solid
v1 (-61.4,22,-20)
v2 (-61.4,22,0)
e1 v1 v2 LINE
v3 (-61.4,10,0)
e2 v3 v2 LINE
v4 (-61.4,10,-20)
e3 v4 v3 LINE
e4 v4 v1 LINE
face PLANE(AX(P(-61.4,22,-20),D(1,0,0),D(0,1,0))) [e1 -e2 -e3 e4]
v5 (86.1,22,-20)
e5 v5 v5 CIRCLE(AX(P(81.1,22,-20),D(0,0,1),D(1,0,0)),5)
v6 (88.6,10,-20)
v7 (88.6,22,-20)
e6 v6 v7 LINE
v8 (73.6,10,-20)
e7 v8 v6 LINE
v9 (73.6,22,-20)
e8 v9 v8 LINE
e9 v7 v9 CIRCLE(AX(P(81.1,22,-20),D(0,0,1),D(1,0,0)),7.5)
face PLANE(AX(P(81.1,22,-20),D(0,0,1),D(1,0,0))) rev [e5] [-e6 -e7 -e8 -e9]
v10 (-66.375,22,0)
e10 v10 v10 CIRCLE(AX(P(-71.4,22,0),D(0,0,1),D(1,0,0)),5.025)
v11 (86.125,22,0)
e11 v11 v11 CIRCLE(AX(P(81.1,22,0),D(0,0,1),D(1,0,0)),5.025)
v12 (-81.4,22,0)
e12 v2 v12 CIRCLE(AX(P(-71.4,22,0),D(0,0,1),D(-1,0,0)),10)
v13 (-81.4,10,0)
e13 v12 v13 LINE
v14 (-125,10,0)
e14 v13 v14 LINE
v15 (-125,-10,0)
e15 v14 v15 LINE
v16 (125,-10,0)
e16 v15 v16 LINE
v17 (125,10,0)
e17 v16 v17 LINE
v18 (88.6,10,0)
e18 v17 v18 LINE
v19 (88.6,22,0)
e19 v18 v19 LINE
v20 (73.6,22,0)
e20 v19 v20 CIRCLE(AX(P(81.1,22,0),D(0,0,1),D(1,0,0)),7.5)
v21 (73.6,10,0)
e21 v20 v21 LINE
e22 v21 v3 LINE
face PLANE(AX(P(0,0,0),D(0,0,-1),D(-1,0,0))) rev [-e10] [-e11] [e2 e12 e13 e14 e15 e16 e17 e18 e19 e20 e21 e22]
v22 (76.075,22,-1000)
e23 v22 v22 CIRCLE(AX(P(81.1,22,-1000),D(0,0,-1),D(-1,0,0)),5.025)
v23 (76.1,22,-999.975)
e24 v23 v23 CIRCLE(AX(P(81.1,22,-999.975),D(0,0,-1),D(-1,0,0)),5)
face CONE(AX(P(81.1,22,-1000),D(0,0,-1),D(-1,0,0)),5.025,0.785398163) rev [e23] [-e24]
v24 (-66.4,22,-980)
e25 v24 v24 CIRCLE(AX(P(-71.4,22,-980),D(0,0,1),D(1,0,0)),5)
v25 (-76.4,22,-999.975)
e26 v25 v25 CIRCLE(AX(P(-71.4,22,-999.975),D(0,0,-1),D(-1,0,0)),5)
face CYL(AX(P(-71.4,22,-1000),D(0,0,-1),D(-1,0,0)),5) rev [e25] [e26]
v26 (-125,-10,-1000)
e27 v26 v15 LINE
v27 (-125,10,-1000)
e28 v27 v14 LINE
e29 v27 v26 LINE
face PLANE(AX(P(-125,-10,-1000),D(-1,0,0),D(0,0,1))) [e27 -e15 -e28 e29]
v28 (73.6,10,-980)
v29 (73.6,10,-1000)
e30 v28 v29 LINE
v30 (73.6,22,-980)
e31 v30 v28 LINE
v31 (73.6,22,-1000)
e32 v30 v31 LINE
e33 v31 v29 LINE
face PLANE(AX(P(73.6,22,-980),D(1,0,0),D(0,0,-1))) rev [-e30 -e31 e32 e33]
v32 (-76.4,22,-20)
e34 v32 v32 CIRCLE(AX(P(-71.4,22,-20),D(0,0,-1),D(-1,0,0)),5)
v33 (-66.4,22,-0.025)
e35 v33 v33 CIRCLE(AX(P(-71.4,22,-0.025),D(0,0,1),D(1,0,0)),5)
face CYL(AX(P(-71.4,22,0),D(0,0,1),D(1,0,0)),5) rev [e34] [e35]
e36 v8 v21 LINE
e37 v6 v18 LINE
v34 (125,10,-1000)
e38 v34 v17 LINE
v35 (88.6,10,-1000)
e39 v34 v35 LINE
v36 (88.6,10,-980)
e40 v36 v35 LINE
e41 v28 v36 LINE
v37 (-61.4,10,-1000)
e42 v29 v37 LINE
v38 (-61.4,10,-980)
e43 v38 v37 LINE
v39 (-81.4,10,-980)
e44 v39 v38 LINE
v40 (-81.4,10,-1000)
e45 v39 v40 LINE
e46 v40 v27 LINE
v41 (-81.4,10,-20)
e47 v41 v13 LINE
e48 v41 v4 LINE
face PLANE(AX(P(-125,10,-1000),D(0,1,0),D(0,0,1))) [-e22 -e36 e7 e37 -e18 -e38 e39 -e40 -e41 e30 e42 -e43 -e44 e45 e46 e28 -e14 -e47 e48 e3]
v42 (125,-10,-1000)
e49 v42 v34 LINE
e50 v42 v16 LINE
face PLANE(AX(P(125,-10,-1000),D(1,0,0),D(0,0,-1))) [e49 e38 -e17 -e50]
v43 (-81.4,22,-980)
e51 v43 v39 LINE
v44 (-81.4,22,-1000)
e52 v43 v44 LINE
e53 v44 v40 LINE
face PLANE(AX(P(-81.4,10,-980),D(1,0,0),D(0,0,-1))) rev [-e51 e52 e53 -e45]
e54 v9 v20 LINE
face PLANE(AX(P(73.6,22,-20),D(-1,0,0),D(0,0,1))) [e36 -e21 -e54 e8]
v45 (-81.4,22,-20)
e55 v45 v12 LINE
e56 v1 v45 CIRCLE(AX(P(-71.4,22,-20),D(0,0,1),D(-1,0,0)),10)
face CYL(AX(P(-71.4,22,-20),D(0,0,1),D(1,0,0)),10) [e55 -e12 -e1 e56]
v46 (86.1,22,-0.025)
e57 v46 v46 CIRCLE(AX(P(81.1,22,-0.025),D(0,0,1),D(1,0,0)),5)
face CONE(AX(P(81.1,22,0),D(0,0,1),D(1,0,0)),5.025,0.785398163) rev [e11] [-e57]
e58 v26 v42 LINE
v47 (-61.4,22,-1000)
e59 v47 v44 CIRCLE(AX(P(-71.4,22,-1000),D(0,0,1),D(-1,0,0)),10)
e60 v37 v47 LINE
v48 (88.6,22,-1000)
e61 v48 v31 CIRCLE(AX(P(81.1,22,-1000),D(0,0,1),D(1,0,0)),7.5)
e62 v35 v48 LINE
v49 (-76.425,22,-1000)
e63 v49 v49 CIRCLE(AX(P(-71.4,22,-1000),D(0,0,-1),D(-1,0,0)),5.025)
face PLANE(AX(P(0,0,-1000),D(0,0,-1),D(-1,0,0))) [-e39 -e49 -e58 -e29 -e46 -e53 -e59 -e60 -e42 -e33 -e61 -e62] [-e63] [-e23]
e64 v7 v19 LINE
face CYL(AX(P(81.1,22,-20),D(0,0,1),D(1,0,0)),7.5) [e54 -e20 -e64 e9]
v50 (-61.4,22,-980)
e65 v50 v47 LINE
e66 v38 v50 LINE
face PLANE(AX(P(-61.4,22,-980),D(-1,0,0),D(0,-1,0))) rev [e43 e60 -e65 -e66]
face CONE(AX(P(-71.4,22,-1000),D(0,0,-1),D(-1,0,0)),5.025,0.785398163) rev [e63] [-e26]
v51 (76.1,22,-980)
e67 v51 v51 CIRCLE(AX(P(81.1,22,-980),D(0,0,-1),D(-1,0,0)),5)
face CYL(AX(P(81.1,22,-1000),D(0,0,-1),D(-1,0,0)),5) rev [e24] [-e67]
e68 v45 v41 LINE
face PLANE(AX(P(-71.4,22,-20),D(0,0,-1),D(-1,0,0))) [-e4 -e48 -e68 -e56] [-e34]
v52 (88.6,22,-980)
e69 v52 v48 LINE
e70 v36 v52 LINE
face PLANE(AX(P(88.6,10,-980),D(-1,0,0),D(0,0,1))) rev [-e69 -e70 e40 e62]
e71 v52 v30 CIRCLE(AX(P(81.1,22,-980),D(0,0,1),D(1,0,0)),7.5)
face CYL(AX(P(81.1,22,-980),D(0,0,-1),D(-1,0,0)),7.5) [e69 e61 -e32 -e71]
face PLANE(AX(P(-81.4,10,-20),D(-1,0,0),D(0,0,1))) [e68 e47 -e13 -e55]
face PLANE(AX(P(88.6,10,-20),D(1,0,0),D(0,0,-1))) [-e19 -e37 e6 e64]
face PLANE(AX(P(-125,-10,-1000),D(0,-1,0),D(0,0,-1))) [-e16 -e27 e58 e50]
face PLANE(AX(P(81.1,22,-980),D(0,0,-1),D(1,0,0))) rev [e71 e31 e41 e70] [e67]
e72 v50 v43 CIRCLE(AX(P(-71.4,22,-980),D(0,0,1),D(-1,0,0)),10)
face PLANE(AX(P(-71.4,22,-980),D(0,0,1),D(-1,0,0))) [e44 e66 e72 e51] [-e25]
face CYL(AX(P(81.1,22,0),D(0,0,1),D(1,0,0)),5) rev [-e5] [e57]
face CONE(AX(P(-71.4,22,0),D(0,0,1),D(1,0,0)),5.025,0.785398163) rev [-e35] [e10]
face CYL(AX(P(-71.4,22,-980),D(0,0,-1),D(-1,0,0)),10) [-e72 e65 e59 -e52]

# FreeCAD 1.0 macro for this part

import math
import FreeCAD as App
import Part
import Sketcher
from FreeCAD import Vector


def add_polygon(sketch, points):
    """Adds a closed chain of lines whose ends are joined by coincident constraints."""
    first, n = sketch.GeometryCount, len(points)
    for a, b in zip(points, points[1:] + points[:1]):
        sketch.addGeometry(Part.LineSegment(App.Vector(*a, 0), App.Vector(*b, 0)), False)
    for i in range(n):
        sketch.addConstraint(Sketcher.Constraint("Coincident", first + i, 2, first + (i + 1) % n, 1))

doc = App.newDocument("Part")
body = doc.addObject("PartDesign::Body", "Body")

# Sketch on XY plane
sketch1 = doc.addObject("Sketcher::SketchObject", "Sketch")
body.addObject(sketch1)
sketch1.AttachmentSupport = (doc.XY_Plane, [""])
sketch1.MapMode = "FlatFace"
add_polygon(sketch1, [(-125, 10), (-125, -10), (125, -10), (125, 10)])  # lines 0-3
sketch1.addConstraint([
    Sketcher.Constraint("Vertical", 0),
    Sketcher.Constraint("Horizontal", 1),
    Sketcher.Constraint("Vertical", 2),
    Sketcher.Constraint("Horizontal", 3),
    Sketcher.Constraint("Symmetric", 0, 2, 2, 2, -1, 1),
    Sketcher.Constraint("DistanceX", 1, 1, 1, 2, 250.0),
    Sketcher.Constraint("DistanceY", 0, 2, 0, 1, 20.0),
])
pad1 = doc.addObject("PartDesign::Pad", "Pad")
body.addObject(pad1)
pad1.Profile = sketch1
pad1.Length = 1000
pad1.Reversed = True

# Sketch on XY plane
sketch2 = doc.addObject("Sketcher::SketchObject", "Sketch001")
body.addObject(sketch2)
sketch2.AttachmentSupport = (doc.XY_Plane, [""])
sketch2.MapMode = "FlatFace"
sketch2.addGeometry([
    Part.LineSegment(Vector(88.6, 10, 0), Vector(88.6, 22, 0)),
    Part.ArcOfCircle(Part.Circle(Vector(81.1, 22, 0), Vector(0, 0, 1), 7.5), math.radians(0), math.radians(180)),
    Part.LineSegment(Vector(73.6, 22, 0), Vector(73.6, 10, 0)),
    Part.LineSegment(Vector(73.6, 10, 0), Vector(88.6, 10, 0)),
], False)
sketch2.addConstraint([
    Sketcher.Constraint("Tangent", 0, 2, 1, 1),
    Sketcher.Constraint("Tangent", 1, 2, 2, 1),
    Sketcher.Constraint("Coincident", 2, 2, 3, 1),
    Sketcher.Constraint("Coincident", 3, 2, 0, 1),
    Sketcher.Constraint("Vertical", 0),
    Sketcher.Constraint("Vertical", 2),
    Sketcher.Constraint("Horizontal", 3),
    Sketcher.Constraint("Radius", 1, 7.5),
    Sketcher.Constraint("DistanceY", 0, 1, 0, 2, 12.0),
    Sketcher.Constraint("DistanceY", -1, 1, 1, 3, 22.0),
    Sketcher.Constraint("DistanceX", -1, 1, 1, 3, 81.1),
])
pad2 = doc.addObject("PartDesign::Pad", "Pad001")
body.addObject(pad2)
pad2.Profile = sketch2
pad2.Length = 20
pad2.Reversed = True

# Sketch on XY plane
sketch3 = doc.addObject("Sketcher::SketchObject", "Sketch002")
body.addObject(sketch3)
sketch3.AttachmentSupport = (doc.XY_Plane, [""])
sketch3.MapMode = "FlatFace"
sketch3.addGeometry([
    Part.LineSegment(Vector(-81.4, 22, 0), Vector(-81.4, 10, 0)),
    Part.LineSegment(Vector(-81.4, 10, 0), Vector(-61.4, 10, 0)),
    Part.LineSegment(Vector(-61.4, 10, 0), Vector(-61.4, 22, 0)),
    Part.ArcOfCircle(Part.Circle(Vector(-71.4, 22, 0), Vector(0, 0, 1), 10), math.radians(0), math.radians(180)),
], False)
sketch3.addConstraint([
    Sketcher.Constraint("Coincident", 0, 2, 1, 1),
    Sketcher.Constraint("Coincident", 1, 2, 2, 1),
    Sketcher.Constraint("Tangent", 2, 2, 3, 1),
    Sketcher.Constraint("Tangent", 3, 2, 0, 1),
    Sketcher.Constraint("Vertical", 0),
    Sketcher.Constraint("Horizontal", 1),
    Sketcher.Constraint("Vertical", 2),
    Sketcher.Constraint("Radius", 3, 10.0),
    Sketcher.Constraint("DistanceY", 0, 2, 0, 1, 12.0),
    Sketcher.Constraint("DistanceY", -1, 1, 3, 3, 22.0),
    Sketcher.Constraint("DistanceX", 3, 3, -1, 1, 71.4),
])
pad3 = doc.addObject("PartDesign::Pad", "Pad002")
body.addObject(pad3)
pad3.Profile = sketch3
pad3.Length = 20
pad3.Reversed = True

# Sketch on XY plane
sketch4 = doc.addObject("Sketcher::SketchObject", "Sketch003")
body.addObject(sketch4)
sketch4.AttachmentSupport = (doc.XY_Plane, [""])
sketch4.MapMode = "FlatFace"
sketch4.addGeometry([
    Part.Circle(Vector(-71.4, 22, 0), Vector(0, 0, 1), 5),
    Part.Circle(Vector(81.1, 22, 0), Vector(0, 0, 1), 5),
], False)
sketch4.addConstraint([
    Sketcher.Constraint("Equal", 0, 1),
    Sketcher.Constraint("Horizontal", 0, 3, 1, 3),
    Sketcher.Constraint("Diameter", 0, 10.0),
    Sketcher.Constraint("DistanceY", -1, 1, 0, 3, 22.0),
    Sketcher.Constraint("DistanceX", 0, 3, -1, 1, 71.4),
    Sketcher.Constraint("DistanceX", -1, 1, 1, 3, 81.1),
])
doc.recompute()
hole = doc.addObject("PartDesign::Hole", "Hole")
body.addObject(hole)
hole.Profile = sketch4
hole.ThreadType = "None"
hole.Diameter = 10
hole.DepthType = "ThroughAll"
hole.HoleCutType = "Countersink"
hole.HoleCutDiameter = 10.05
hole.HoleCutCountersinkAngle = 90
doc.recompute()

datumplane = doc.addObject("PartDesign::Plane", "DatumPlane")
body.addObject(datumplane)
datumplane.AttachmentSupport = (doc.XY_Plane, [""])
datumplane.MapMode = "FlatFace"
datumplane.AttachmentOffset = App.Placement(Vector(0, 0, -500), App.Rotation())
mirrored = doc.addObject("PartDesign::Mirrored", "Mirrored")
body.addObject(mirrored)
mirrored.Originals = [pad2, pad3, hole]
mirrored.MirrorPlane = (datumplane, [""])
body.Tip = mirrored

doc.recompute()
